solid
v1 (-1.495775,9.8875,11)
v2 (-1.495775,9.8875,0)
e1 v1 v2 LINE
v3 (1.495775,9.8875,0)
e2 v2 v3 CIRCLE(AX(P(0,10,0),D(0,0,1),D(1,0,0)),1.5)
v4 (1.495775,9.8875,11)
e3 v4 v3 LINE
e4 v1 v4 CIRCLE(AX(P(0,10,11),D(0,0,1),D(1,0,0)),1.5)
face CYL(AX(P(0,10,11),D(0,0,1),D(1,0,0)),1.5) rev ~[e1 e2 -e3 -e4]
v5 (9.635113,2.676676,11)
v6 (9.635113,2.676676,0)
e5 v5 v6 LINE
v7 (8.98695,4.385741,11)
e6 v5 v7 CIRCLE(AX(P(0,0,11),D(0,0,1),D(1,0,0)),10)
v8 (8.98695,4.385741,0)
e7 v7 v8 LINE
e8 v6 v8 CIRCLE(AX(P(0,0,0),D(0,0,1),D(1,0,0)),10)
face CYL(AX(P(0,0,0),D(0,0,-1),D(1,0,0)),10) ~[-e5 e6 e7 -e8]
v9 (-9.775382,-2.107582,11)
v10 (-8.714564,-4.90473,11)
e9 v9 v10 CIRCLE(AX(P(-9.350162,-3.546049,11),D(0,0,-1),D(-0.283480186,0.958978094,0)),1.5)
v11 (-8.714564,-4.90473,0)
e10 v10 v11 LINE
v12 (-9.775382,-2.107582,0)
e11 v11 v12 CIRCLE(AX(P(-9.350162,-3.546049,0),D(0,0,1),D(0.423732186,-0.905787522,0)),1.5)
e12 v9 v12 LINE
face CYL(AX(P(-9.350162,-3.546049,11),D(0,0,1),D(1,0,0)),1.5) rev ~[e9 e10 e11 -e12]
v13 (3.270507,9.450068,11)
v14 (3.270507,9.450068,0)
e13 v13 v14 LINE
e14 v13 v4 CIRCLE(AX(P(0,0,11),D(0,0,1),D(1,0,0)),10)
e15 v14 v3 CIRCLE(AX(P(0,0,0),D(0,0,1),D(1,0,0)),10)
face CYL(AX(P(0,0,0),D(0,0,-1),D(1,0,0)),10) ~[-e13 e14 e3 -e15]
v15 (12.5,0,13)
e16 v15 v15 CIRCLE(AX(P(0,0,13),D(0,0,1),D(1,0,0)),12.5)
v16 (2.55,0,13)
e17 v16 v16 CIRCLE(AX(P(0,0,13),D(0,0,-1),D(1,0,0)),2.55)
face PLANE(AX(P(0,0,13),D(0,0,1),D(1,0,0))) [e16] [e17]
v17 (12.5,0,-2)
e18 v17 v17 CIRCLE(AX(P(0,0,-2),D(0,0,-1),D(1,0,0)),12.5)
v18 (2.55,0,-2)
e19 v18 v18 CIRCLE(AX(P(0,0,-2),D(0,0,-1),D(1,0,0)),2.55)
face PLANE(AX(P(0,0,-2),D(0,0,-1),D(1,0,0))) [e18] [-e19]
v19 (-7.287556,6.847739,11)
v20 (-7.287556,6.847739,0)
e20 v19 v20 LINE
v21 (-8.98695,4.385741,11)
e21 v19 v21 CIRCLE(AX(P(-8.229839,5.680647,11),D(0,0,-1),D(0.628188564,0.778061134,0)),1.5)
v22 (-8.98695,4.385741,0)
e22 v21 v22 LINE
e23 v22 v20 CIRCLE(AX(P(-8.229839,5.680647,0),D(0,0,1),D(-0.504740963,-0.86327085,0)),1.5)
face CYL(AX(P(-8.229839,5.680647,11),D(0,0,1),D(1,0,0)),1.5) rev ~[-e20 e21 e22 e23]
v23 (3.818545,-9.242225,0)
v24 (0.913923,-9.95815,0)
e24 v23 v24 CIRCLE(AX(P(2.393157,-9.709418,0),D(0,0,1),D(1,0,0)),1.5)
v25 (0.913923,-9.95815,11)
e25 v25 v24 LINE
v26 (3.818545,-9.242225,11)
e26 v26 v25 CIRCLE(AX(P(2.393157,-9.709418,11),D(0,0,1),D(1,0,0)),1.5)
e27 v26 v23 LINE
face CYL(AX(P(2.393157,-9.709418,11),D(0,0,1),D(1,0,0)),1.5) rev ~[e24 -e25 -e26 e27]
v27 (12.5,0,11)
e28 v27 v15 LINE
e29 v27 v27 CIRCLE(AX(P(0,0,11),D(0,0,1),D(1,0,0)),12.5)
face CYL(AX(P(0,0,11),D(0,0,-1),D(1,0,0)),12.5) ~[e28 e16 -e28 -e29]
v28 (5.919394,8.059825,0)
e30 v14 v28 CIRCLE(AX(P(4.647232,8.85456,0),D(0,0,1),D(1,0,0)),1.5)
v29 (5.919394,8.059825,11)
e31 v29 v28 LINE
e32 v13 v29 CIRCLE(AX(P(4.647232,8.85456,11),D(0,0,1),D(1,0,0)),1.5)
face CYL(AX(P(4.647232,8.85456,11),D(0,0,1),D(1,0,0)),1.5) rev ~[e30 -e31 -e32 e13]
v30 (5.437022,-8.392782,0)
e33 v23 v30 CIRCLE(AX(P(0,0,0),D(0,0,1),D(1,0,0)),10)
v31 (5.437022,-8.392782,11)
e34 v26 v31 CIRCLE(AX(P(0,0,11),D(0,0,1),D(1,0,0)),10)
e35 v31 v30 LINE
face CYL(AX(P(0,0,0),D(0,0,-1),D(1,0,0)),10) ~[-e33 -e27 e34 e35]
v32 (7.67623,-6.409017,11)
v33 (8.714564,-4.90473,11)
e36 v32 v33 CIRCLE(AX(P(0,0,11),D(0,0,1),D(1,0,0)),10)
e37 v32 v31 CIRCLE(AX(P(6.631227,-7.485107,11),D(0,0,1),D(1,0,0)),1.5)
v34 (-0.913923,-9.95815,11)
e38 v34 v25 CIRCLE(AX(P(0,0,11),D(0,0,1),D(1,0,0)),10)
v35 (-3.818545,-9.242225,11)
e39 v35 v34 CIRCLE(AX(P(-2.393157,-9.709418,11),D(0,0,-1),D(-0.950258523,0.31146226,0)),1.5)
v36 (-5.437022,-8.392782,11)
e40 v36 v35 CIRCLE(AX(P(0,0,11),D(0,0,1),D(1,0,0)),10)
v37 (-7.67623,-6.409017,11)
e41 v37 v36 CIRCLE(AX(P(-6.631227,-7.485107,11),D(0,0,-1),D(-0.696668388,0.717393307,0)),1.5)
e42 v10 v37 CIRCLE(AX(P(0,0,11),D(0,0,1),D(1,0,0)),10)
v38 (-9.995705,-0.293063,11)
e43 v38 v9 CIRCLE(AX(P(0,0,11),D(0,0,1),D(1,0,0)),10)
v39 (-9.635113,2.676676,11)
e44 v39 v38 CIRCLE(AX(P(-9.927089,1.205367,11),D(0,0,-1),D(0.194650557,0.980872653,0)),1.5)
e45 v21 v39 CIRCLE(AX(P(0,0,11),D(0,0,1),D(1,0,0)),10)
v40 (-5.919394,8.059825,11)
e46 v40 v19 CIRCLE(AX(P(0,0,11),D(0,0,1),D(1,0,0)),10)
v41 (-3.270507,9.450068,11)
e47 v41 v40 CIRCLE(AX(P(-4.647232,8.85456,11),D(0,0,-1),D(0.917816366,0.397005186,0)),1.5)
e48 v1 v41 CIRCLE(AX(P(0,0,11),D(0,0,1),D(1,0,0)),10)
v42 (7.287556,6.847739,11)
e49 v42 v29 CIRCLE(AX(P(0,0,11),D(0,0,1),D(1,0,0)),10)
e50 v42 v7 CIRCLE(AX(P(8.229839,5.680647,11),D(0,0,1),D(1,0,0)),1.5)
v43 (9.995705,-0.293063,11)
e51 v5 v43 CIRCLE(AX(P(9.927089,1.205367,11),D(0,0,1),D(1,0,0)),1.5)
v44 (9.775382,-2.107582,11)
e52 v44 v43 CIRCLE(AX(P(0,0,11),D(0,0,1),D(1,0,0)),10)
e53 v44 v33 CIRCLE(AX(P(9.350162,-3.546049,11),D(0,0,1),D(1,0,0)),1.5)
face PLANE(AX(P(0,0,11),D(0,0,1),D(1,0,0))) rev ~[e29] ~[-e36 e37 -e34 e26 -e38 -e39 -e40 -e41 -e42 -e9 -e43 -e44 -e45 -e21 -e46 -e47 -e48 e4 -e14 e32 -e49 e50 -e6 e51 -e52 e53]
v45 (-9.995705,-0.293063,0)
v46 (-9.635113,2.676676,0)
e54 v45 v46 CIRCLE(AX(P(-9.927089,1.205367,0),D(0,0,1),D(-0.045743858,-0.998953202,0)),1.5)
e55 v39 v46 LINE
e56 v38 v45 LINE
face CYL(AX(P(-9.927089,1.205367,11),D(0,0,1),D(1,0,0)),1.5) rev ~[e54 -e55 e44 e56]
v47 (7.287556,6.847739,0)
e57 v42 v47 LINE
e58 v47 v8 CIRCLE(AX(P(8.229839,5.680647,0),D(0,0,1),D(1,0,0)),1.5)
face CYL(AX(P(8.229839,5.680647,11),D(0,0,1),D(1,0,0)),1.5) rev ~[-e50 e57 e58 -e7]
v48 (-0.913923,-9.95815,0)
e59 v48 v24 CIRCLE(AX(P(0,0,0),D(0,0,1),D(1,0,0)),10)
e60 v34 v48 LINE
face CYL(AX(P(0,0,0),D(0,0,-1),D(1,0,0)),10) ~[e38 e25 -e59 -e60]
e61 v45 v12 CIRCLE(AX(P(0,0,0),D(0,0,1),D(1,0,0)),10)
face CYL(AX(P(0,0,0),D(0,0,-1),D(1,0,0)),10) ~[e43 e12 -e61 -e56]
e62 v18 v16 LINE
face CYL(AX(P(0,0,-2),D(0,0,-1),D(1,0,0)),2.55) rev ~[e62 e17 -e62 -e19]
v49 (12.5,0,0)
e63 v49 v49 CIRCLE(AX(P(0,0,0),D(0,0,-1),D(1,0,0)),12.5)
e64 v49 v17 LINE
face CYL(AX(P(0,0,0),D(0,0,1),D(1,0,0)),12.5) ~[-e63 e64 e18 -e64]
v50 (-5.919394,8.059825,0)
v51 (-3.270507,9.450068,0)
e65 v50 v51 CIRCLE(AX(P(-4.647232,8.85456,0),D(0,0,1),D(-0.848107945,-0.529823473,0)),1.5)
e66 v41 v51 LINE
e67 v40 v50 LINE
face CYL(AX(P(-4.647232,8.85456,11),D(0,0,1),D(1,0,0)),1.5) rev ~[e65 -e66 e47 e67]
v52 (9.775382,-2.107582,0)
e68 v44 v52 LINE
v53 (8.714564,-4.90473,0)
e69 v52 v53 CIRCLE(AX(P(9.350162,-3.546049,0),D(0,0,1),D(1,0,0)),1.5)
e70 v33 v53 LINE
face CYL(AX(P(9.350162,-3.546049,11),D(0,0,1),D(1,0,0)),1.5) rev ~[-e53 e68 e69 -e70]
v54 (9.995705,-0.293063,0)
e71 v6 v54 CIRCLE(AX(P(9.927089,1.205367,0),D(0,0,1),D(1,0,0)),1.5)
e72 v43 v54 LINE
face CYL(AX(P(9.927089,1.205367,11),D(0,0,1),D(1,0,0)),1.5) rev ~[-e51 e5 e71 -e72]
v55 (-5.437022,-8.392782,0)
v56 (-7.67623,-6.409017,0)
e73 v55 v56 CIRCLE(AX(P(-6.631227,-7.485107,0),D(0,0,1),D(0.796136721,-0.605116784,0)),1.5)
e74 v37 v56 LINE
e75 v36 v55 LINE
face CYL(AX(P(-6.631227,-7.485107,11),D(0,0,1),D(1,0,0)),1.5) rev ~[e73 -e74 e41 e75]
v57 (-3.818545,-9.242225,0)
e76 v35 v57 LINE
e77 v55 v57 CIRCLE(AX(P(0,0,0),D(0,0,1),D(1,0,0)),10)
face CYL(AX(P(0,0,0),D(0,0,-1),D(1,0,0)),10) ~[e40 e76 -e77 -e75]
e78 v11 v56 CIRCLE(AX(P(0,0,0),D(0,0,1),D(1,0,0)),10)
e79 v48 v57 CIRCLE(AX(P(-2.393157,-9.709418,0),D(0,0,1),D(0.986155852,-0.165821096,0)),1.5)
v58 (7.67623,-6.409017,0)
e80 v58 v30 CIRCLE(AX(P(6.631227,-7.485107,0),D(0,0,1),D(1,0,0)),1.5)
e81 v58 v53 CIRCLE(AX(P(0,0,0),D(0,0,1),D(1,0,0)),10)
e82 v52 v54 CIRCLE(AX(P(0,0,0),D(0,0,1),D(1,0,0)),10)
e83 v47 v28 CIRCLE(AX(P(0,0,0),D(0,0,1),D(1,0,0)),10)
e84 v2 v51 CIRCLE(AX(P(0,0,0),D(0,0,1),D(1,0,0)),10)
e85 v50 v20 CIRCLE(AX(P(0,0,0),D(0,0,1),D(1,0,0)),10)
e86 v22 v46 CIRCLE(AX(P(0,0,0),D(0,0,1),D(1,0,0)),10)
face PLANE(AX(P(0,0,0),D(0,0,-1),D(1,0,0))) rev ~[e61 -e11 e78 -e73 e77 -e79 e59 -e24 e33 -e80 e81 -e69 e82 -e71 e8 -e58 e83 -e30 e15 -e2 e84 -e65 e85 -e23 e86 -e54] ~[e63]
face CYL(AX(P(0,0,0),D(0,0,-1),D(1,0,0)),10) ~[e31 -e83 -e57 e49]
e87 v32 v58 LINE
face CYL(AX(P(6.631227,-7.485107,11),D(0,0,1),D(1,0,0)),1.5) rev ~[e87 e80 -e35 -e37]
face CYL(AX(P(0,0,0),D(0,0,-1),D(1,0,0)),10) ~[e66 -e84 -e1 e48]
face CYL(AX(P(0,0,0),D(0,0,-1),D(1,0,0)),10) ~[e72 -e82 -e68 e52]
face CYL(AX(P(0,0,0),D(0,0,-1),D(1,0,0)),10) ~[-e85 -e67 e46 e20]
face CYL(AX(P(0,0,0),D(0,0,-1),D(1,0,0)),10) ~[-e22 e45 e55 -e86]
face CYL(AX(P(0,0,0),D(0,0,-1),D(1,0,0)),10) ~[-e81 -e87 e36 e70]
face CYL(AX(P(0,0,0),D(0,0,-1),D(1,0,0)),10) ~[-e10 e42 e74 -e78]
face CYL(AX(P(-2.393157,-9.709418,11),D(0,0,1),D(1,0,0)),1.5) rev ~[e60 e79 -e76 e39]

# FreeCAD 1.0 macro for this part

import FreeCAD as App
import Part
import Sketcher
from FreeCAD import Vector

doc = App.newDocument("Part")
params = doc.addObject("Spreadsheet::Sheet", "Params")
for row, (alias, value) in enumerate([
    ("sketch1_diameter", "20 mm"),
    ("pad1_length", "11 mm"),
    ("sketch2_diameter", "3 mm"),
    ("pocket1_length", "25 mm"),
    ("sketch3_diameter", "25 mm"),
    ("pad2_length", "2 mm"),
    ("sketch4_diameter", "25 mm"),
    ("pad3_length", "2 mm"),
    ("sketch5_diameter", "5.1 mm"),
], start=1):
    params.set(f"A{row}", alias)
    params.set(f"B{row}", "=" + value)
    params.setAlias(f"B{row}", alias)

body = doc.addObject("PartDesign::Body", "Body")

sketch1 = body.newObject("Sketcher::SketchObject", "Sketch")
sketch1.AttachmentSupport = (doc.getObject("XY_Plane"), [""])
sketch1.MapMode = "FlatFace"
sketch1.addGeometry(Part.Circle(Vector(0, 0, 0), Vector(0, 0, 1), 10), False)
sketch1.addConstraint([
    Sketcher.Constraint("Coincident", 0, 3, -1, 1),
    Sketcher.Constraint("Diameter", 0, 20.0),
])
sketch1.setExpression("Constraints[1]", "Params.sketch1_diameter")
pad1 = body.newObject("PartDesign::Pad", "Pad")
pad1.Profile = sketch1
pad1.setExpression("Length", "Params.pad1_length")

sketch2 = body.newObject("Sketcher::SketchObject", "Sketch001")
sketch2.AttachmentSupport = (doc.getObject("XY_Plane"), [""])
sketch2.MapMode = "FlatFace"
sketch2.AttachmentOffset = App.Placement(Vector(0, 0, 11), App.Rotation())
sketch2.addGeometry([
    Part.Circle(Vector(0, 10, 0), Vector(0, 0, 1), 1.5),
    Part.Circle(Vector(-4.6, 8.9, 0), Vector(0, 0, 1), 1.5),
    Part.Circle(Vector(-8.2, 5.7, 0), Vector(0, 0, 1), 1.5),
    Part.Circle(Vector(-9.9, 1.2, 0), Vector(0, 0, 1), 1.5),
    Part.Circle(Vector(-9.4, -3.5, 0), Vector(0, 0, 1), 1.5),
    Part.Circle(Vector(-6.6, -7.5, 0), Vector(0, 0, 1), 1.5),
    Part.Circle(Vector(-2.4, -9.7, 0), Vector(0, 0, 1), 1.5),
    Part.Circle(Vector(2.4, -9.7, 0), Vector(0, 0, 1), 1.5),
    Part.Circle(Vector(6.6, -7.5, 0), Vector(0, 0, 1), 1.5),
    Part.Circle(Vector(9.4, -3.5, 0), Vector(0, 0, 1), 1.5),
    Part.Circle(Vector(9.9, 1.2, 0), Vector(0, 0, 1), 1.5),
    Part.Circle(Vector(8.2, 5.7, 0), Vector(0, 0, 1), 1.5),
    Part.Circle(Vector(4.6, 8.9, 0), Vector(0, 0, 1), 1.5),
], False)
sketch2.addConstraint([
    Sketcher.Constraint("Equal", 0, 1),
    Sketcher.Constraint("Equal", 1, 2),
    Sketcher.Constraint("Equal", 2, 3),
    Sketcher.Constraint("Equal", 3, 4),
    Sketcher.Constraint("Equal", 4, 5),
    Sketcher.Constraint("Equal", 5, 6),
    Sketcher.Constraint("Equal", 6, 7),
    Sketcher.Constraint("Equal", 7, 8),
    Sketcher.Constraint("Equal", 8, 9),
    Sketcher.Constraint("Equal", 9, 10),
    Sketcher.Constraint("Equal", 10, 11),
    Sketcher.Constraint("Equal", 11, 12),
    Sketcher.Constraint("Symmetric", 6, 3, 7, 3, -2),
    Sketcher.Constraint("Symmetric", 5, 3, 8, 3, -2),
    Sketcher.Constraint("Symmetric", 4, 3, 9, 3, -2),
    Sketcher.Constraint("Symmetric", 3, 3, 10, 3, -2),
    Sketcher.Constraint("Symmetric", 2, 3, 11, 3, -2),
    Sketcher.Constraint("Symmetric", 1, 3, 12, 3, -2),
    Sketcher.Constraint("PointOnObject", 0, 3, -2),
    Sketcher.Constraint("Diameter", 0, 3.0),
    Sketcher.Constraint("DistanceY", -1, 1, 0, 3, 10.0),
    Sketcher.Constraint("DistanceX", 1, 3, -1, 1, 4.647232),
    Sketcher.Constraint("DistanceY", -1, 1, 1, 3, 8.85456),
    Sketcher.Constraint("DistanceX", 2, 3, -1, 1, 8.229839),
    Sketcher.Constraint("DistanceX", 3, 3, -1, 1, 9.927089),
    Sketcher.Constraint("DistanceX", 4, 3, -1, 1, 9.350162),
    Sketcher.Constraint("DistanceY", 4, 3, -1, 1, 3.546049),
    Sketcher.Constraint("DistanceY", 3, 3, 2, 3, 4.47528),
    Sketcher.Constraint("DistanceY", 5, 3, 4, 3, 3.939058),
    Sketcher.Constraint("DistanceX", 5, 3, 6, 3, 4.23807),
    Sketcher.Constraint("DistanceY", 6, 3, 5, 3, 2.224311),
    Sketcher.Constraint("DistanceX", 2, 3, 6, 3, 5.836682),
    Sketcher.Constraint("DistanceY", -1, 1, 2, 3, 5.680647),
])
sketch2.setExpression("Constraints[19]", "Params.sketch2_diameter")
pocket1 = body.newObject("PartDesign::Pocket", "Pocket")
pocket1.Profile = sketch2
pocket1.setExpression("Length", "Params.pocket1_length")

sketch3 = body.newObject("Sketcher::SketchObject", "Sketch002")
sketch3.AttachmentSupport = (doc.getObject("XY_Plane"), [""])
sketch3.MapMode = "FlatFace"
sketch3.addGeometry(Part.Circle(Vector(0, 0, 0), Vector(0, 0, 1), 12), False)
sketch3.addConstraint([
    Sketcher.Constraint("Coincident", 0, 3, -1, 1),
    Sketcher.Constraint("Diameter", 0, 25.0),
])
sketch3.setExpression("Constraints[1]", "Params.sketch3_diameter")
pad2 = body.newObject("PartDesign::Pad", "Pad001")
pad2.Profile = sketch3
pad2.setExpression("Length", "Params.pad2_length")
pad2.Reversed = True

sketch4 = body.newObject("Sketcher::SketchObject", "Sketch003")
sketch4.AttachmentSupport = (doc.getObject("XY_Plane"), [""])
sketch4.MapMode = "FlatFace"
sketch4.AttachmentOffset = App.Placement(Vector(0, 0, 11), App.Rotation())
sketch4.addGeometry(Part.Circle(Vector(0, 0, 0), Vector(0, 0, 1), 12), False)
sketch4.addConstraint([
    Sketcher.Constraint("Coincident", 0, 3, -1, 1),
    Sketcher.Constraint("Diameter", 0, 25.0),
])
sketch4.setExpression("Constraints[1]", "Params.sketch4_diameter")
pad3 = body.newObject("PartDesign::Pad", "Pad002")
pad3.Profile = sketch4
pad3.setExpression("Length", "Params.pad3_length")

sketch5 = body.newObject("Sketcher::SketchObject", "Sketch004")
sketch5.AttachmentSupport = (doc.getObject("XY_Plane"), [""])
sketch5.MapMode = "FlatFace"
sketch5.AttachmentOffset = App.Placement(Vector(0, 0, -2), App.Rotation())
sketch5.addGeometry(Part.Circle(Vector(0, 0, 0), Vector(0, 0, 1), 2.5), False)
sketch5.addConstraint([
    Sketcher.Constraint("Coincident", 0, 3, -1, 1),
    Sketcher.Constraint("Diameter", 0, 5.1),
])
sketch5.setExpression("Constraints[1]", "Params.sketch5_diameter")
pocket2 = body.newObject("PartDesign::Pocket", "Pocket001")
pocket2.Profile = sketch5
pocket2.Type = "ThroughAll"
pocket2.Reversed = True

doc.recompute()
